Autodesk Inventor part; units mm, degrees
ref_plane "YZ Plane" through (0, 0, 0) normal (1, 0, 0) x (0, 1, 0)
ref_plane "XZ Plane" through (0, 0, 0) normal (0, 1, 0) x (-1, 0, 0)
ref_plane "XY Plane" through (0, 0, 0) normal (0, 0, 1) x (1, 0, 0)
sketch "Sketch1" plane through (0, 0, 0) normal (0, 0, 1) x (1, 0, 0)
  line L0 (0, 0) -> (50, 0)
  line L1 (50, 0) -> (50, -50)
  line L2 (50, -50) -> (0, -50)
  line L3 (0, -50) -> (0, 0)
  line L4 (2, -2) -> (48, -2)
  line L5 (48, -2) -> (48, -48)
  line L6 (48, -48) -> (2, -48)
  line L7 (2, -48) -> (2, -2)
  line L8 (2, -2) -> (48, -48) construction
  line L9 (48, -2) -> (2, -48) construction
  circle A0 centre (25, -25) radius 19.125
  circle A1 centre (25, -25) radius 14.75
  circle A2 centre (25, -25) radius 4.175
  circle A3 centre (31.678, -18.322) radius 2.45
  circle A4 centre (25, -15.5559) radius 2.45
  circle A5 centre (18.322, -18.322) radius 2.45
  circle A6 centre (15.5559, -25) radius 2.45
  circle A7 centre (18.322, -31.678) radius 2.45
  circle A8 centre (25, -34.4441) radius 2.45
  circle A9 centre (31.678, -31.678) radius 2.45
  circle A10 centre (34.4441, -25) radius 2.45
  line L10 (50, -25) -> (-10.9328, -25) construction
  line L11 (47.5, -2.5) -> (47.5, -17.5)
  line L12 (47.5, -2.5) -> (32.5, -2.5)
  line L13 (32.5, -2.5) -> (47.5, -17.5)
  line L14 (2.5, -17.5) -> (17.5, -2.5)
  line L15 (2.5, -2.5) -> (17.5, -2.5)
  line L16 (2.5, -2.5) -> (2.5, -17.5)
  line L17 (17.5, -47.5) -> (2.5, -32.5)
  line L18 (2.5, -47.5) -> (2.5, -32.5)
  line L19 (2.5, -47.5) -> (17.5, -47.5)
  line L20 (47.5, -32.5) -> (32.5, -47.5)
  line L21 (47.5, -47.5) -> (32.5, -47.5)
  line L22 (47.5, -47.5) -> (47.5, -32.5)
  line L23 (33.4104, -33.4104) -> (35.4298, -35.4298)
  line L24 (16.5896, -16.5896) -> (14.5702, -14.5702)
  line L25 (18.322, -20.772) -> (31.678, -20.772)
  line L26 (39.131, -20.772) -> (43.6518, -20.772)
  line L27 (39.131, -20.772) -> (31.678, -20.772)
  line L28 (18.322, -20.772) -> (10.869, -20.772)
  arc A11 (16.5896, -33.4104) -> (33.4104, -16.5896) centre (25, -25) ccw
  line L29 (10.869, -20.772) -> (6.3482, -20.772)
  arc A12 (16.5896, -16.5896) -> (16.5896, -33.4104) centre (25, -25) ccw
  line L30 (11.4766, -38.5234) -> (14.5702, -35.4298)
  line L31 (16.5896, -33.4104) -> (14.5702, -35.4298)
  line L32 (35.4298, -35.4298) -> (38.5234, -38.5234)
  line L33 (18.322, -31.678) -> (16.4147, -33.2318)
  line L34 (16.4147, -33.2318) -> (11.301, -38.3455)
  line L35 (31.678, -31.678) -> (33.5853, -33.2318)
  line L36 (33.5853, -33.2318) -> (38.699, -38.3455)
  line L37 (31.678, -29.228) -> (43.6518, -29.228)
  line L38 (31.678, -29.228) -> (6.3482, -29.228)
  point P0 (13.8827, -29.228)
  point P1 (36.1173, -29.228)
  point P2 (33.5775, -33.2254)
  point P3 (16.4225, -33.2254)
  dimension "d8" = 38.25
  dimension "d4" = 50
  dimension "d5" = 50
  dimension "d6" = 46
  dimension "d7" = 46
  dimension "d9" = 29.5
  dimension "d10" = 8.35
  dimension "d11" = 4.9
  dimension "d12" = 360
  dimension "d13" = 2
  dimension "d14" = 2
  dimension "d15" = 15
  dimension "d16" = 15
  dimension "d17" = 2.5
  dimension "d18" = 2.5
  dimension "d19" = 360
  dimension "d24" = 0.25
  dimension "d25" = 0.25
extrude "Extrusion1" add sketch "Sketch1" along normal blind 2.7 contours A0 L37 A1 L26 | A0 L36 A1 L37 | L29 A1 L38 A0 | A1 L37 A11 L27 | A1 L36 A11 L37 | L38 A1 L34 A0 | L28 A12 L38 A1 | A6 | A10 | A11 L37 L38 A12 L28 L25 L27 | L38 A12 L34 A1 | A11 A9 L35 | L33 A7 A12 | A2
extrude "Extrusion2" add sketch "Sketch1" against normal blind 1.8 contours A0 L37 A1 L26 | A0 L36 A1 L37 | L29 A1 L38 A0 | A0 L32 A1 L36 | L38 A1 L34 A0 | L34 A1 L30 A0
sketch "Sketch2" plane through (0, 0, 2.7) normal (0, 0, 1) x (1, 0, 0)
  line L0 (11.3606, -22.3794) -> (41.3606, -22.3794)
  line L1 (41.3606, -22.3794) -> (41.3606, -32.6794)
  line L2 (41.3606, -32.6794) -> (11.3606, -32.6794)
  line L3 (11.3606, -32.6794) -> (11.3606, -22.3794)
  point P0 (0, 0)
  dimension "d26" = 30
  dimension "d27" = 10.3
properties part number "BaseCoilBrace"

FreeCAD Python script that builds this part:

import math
import FreeCAD as App
import Part
import Sketcher

V = App.Vector
Q = App.Units.Quantity

doc = App.newDocument("Part")
params = doc.addObject("Spreadsheet::Sheet", "Params")
for row, (alias, value) in enumerate([
    ("sketch1_radius", "2.45 mm"),
    ("sketch1_length", "0.01 mm"),
    ("pad1_length", "2.7 mm"),
    ("sketch2_radius", "14.75 mm"),
    ("pad2_length", "1.8 mm"),
], start=1):
    params.set(f"A{row}", alias)
    params.set(f"B{row}", "=" + value)
    params.setAlias(f"B{row}", alias)

body = doc.addObject("PartDesign::Body", "Body")
body.AllowCompound = True

# Sketch on XY plane
sketch1 = body.newObject("Sketcher::SketchObject", "Sketch")
sketch1.AttachmentSupport = (doc.getObject("XY_Plane"), [""])
sketch1.MapMode = "FlatFace"
sketch1.addGeometry([
    Part.LineSegment(V(43.6518, -20.772, 0), V(6.3482, -20.772, 0)),  # 0
    Part.ArcOfCircle(Part.Circle(V(25, -25, 0), V(0, 0, 1), 19.125), math.radians(167.228002), math.radians(224.251127)),  # 1
    Part.LineSegment(V(11.301, -38.3455, 0), V(16.4147, -33.2318, 0)),  # 2
    Part.ArcOfCircle(Part.Circle(V(25, -25, 0), V(0, 0, 1), 11.894102), math.radians(-159.177729), math.radians(-136.204195)),  # 3
    Part.LineSegment(V(13.882731, -29.228, 0), V(36.117269, -29.228, 0)),  # 4
    Part.ArcOfCircle(Part.Circle(V(25, -25, 0), V(0, 0, 1), 11.894102), math.radians(-43.795805), math.radians(-20.822271)),  # 5
    Part.LineSegment(V(33.5853, -33.2318, 0), V(38.699, -38.3455, 0)),  # 6
    Part.ArcOfCircle(Part.Circle(V(25, -25, 0), V(0, 0, 1), 19.125), math.radians(-44.251127), math.radians(12.771998)),  # 7
    Part.ArcOfCircle(Part.Circle(V(25, -25, 0), V(0, 0, 1), 11.894102), math.radians(-45), math.radians(-43.795805)),  # 8
    Part.LineSegment(V(33.5853, -33.2318, 0), V(33.57747, -33.225421, 0)),  # 9
    Part.ArcOfCircle(Part.Circle(V(31.678, -31.678, 0), V(0, 0, 1), 2.45), math.radians(-45), math.radians(-39.168308)),  # 10
    Part.LineSegment(V(16.42253, -33.225421, 0), V(16.4147, -33.2318, 0)),  # 11
    Part.ArcOfCircle(Part.Circle(V(25, -25, 0), V(0, 0, 1), 11.894102), math.radians(-136.204195), math.radians(-135)),  # 12
    Part.ArcOfCircle(Part.Circle(V(18.322, -31.678, 0), V(0, 0, 1), 2.45), math.radians(-140.831692), math.radians(-135)),  # 13
], False)
sketch1.addConstraint([
    Sketcher.Constraint("Coincident", 0, 2, 1, 1),
    Sketcher.Constraint("Coincident", 1, 2, 2, 1),
    Sketcher.Constraint("Coincident", 2, 2, 3, 2),
    Sketcher.Constraint("Coincident", 3, 1, 4, 1),
    Sketcher.Constraint("Coincident", 4, 2, 5, 2),
    Sketcher.Constraint("Coincident", 5, 1, 6, 1),
    Sketcher.Constraint("Coincident", 6, 2, 7, 1),
    Sketcher.Constraint("Coincident", 7, 2, 0, 1),
    Sketcher.Constraint("Coincident", 8, 2, 9, 1),
    Sketcher.Constraint("Coincident", 9, 2, 10, 2),
    Sketcher.Constraint("Tangent", 10, 1, 8, 1),
    Sketcher.Constraint("Coincident", 11, 2, 12, 1),
    Sketcher.Constraint("Tangent", 12, 2, 13, 2),
    Sketcher.Constraint("Coincident", 13, 1, 11, 1),
    Sketcher.Constraint("Horizontal", 0),
    Sketcher.Constraint("Horizontal", 4),
    Sketcher.Constraint("Coincident", 3, 3, 1, 3),
    Sketcher.Constraint("Coincident", 5, 3, 1, 3),
    Sketcher.Constraint("Coincident", 7, 3, 1, 3),
    Sketcher.Constraint("Coincident", 8, 3, 1, 3),
    Sketcher.Constraint("Coincident", 12, 3, 1, 3),
    Sketcher.Constraint("Coincident", 8, 2, 5, 1),
    Sketcher.Constraint("Coincident", 11, 2, 2, 2),
    Sketcher.Constraint("Equal", 3, 5),
    Sketcher.Constraint("Equal", 1, 7),
    Sketcher.Constraint("Equal", 10, 13),
    Sketcher.Constraint("Perpendicular", 2, 6),
    Sketcher.Constraint("Horizontal", 10, 3, 13, 3),
    Sketcher.Constraint("Horizontal", 2, 2, 5, 1),
    Sketcher.Constraint("Horizontal", 1, 2, 6, 2),
    Sketcher.Constraint("Horizontal", 9, 2, 13, 1),
    Sketcher.Constraint("Radius", 10, Q("2.45 mm")),
    Sketcher.Constraint("Radius", 1, Q("19.125 mm")),
    Sketcher.Constraint("DistanceX", -1, 1, 1, 3, Q("25 mm")),
    Sketcher.Constraint("DistanceY", 1, 3, -1, 1, Q("25 mm")),
    Sketcher.Constraint("Radius", 3, Q("11.894 mm")),
    Sketcher.Constraint("Distance", 9, Q("0.01 mm")),
    Sketcher.Constraint("DistanceY", 13, 3, 3, 1, Q("2.45 mm")),
    Sketcher.Constraint("DistanceY", 6, 2, 9, 2, Q("5.12 mm")),
    Sketcher.Constraint("DistanceX", 0, 2, 0, 1, Q("37.3036 mm")),
    Sketcher.Constraint("DistanceX", 4, 1, 4, 2, Q("22.2345 mm")),
])
sketch1.setExpression("Constraints[31]", "Params.sketch1_radius")
sketch1.setExpression("Constraints[36]", "Params.sketch1_length")
pad1 = body.newObject("PartDesign::Pad", "Pad")
pad1.Profile = sketch1
pad1.setExpression("Length", "Params.pad1_length")

# Sketch on XY plane
sketch2 = body.newObject("Sketcher::SketchObject", "Sketch001")
sketch2.AttachmentSupport = (doc.getObject("XY_Plane"), [""])
sketch2.MapMode = "FlatFace"
sketch2.addGeometry([
    Part.LineSegment(V(43.6518, -20.772, 0), V(39.131, -20.772, 0)),  # 0
    Part.ArcOfCircle(Part.Circle(V(25, -25, 0), V(0, 0, 1), 14.75), math.radians(-45), math.radians(16.657201)),  # 1
    Part.LineSegment(V(35.4298, -35.4298, 0), V(38.5234, -38.5234, 0)),  # 2
    Part.ArcOfCircle(Part.Circle(V(25, -25, 0), V(0, 0, 1), 19.125), math.radians(-45), math.radians(12.771998)),  # 3
    Part.LineSegment(V(10.869, -20.772, 0), V(6.3482, -20.772, 0)),  # 4
    Part.ArcOfCircle(Part.Circle(V(25, -25, 0), V(0, 0, 1), 19.125), math.radians(167.228002), math.radians(225)),  # 5
    Part.LineSegment(V(11.4766, -38.5234, 0), V(14.5702, -35.4298, 0)),  # 6
    Part.ArcOfCircle(Part.Circle(V(25, -25, 0), V(0, 0, 1), 14.75), math.radians(163.342799), math.radians(225)),  # 7
], False)
sketch2.addConstraint([
    Sketcher.Constraint("Coincident", 0, 2, 1, 2),
    Sketcher.Constraint("Coincident", 1, 1, 2, 1),
    Sketcher.Constraint("Coincident", 2, 2, 3, 1),
    Sketcher.Constraint("Coincident", 3, 2, 0, 1),
    Sketcher.Constraint("Coincident", 4, 2, 5, 1),
    Sketcher.Constraint("Coincident", 5, 2, 6, 1),
    Sketcher.Constraint("Coincident", 6, 2, 7, 2),
    Sketcher.Constraint("Coincident", 7, 1, 4, 1),
    Sketcher.Constraint("Horizontal", 0),
    Sketcher.Constraint("Horizontal", 4),
    Sketcher.Constraint("Coincident", 3, 3, 1, 3),
    Sketcher.Constraint("Coincident", 5, 3, 1, 3),
    Sketcher.Constraint("Coincident", 7, 3, 1, 3),
    Sketcher.Constraint("Equal", 3, 5),
    Sketcher.Constraint("Equal", 1, 7),
    Sketcher.Constraint("Perpendicular", 2, 6),
    Sketcher.Constraint("Horizontal", 3, 2, 4, 2),
    Sketcher.Constraint("Horizontal", 2, 2, 5, 2),
    Sketcher.Constraint("Horizontal", 1, 1, 6, 2),
    Sketcher.Constraint("Radius", 1, Q("14.75 mm")),
    Sketcher.Constraint("Radius", 3, Q("19.125 mm")),
    Sketcher.Constraint("DistanceX", -1, 1, 1, 3, Q("25 mm")),
    Sketcher.Constraint("DistanceY", 1, 3, -1, 1, Q("25 mm")),
    Sketcher.Constraint("DistanceX", 0, 2, 0, 1, Q("4.5208 mm")),
    Sketcher.Constraint("DistanceX", 1, 1, 3, 2, Q("8.222 mm")),
])
sketch2.setExpression("Constraints[19]", "Params.sketch2_radius")
pad2 = body.newObject("PartDesign::Pad", "Pad001")
pad2.Profile = sketch2
pad2.setExpression("Length", "Params.pad2_length")
pad2.Reversed = True

doc.recompute()
